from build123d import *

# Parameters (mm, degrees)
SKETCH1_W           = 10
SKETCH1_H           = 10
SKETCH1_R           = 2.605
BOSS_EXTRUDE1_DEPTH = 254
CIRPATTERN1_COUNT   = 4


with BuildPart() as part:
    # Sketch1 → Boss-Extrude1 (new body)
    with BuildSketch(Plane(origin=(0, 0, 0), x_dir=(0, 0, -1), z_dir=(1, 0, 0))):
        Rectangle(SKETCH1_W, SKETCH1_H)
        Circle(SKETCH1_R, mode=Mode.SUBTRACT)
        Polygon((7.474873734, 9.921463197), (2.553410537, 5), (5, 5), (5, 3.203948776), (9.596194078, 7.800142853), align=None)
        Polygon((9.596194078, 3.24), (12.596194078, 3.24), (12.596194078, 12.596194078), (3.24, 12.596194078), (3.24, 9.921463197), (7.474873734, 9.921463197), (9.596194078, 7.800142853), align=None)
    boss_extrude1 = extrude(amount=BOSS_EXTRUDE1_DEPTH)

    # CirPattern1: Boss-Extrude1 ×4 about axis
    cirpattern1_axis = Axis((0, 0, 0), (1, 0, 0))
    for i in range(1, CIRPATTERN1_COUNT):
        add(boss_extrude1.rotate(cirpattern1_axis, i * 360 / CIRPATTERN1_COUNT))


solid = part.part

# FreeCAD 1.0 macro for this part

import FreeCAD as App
import Part
import Sketcher
Q = App.Units.Quantity

doc = App.newDocument("Part")
body = doc.addObject("PartDesign::Body", "Body")

sketch1 = doc.addObject("Sketcher::SketchObject", "Sketch")
body.addObject(sketch1)
sketch1.AttachmentSupport = (doc.YZ_Plane, [""])
sketch1.MapMode = "FlatFace"
sketch1.addGeometry([
    Part.LineSegment(App.Vector(5, 5, 0), App.Vector(-5, 5, 0)),
    Part.LineSegment(App.Vector(-5, 5, 0), App.Vector(-5, -5, 0)),
    Part.LineSegment(App.Vector(-5, -5, 0), App.Vector(3.2, -5, 0)),
    Part.LineSegment(App.Vector(3.2, -5, 0), App.Vector(7.8, -9.6, 0)),
    Part.LineSegment(App.Vector(7.8, -9.6, 0), App.Vector(3.2, -9.6, 0)),
    Part.LineSegment(App.Vector(3.2, -9.6, 0), App.Vector(3.2, -12.6, 0)),
    Part.LineSegment(App.Vector(3.2, -12.6, 0), App.Vector(12.6, -12.6, 0)),
    Part.LineSegment(App.Vector(12.6, -12.6, 0), App.Vector(12.6, -3.2, 0)),
    Part.LineSegment(App.Vector(12.6, -3.2, 0), App.Vector(9.9, -3.2, 0)),
    Part.LineSegment(App.Vector(9.9, -3.2, 0), App.Vector(9.9, -7.5, 0)),
    Part.LineSegment(App.Vector(9.9, -7.5, 0), App.Vector(5, -2.6, 0)),
    Part.LineSegment(App.Vector(5, -2.6, 0), App.Vector(5, 5, 0)),
    Part.Circle(App.Vector(0, 0, 0), App.Vector(0, 0, 1), 2.6),
], False)
sketch1.addConstraint([
    Sketcher.Constraint("Coincident", 0, 2, 1, 1),
    Sketcher.Constraint("Coincident", 1, 2, 2, 1),
    Sketcher.Constraint("Coincident", 2, 2, 3, 1),
    Sketcher.Constraint("Coincident", 3, 2, 4, 1),
    Sketcher.Constraint("Coincident", 4, 2, 5, 1),
    Sketcher.Constraint("Coincident", 5, 2, 6, 1),
    Sketcher.Constraint("Coincident", 6, 2, 7, 1),
    Sketcher.Constraint("Coincident", 7, 2, 8, 1),
    Sketcher.Constraint("Coincident", 8, 2, 9, 1),
    Sketcher.Constraint("Coincident", 9, 2, 10, 1),
    Sketcher.Constraint("Coincident", 10, 2, 11, 1),
    Sketcher.Constraint("Coincident", 11, 2, 0, 1),
    Sketcher.Constraint("Horizontal", 0),
    Sketcher.Constraint("Vertical", 1),
    Sketcher.Constraint("Horizontal", 2),
    Sketcher.Constraint("Horizontal", 4),
    Sketcher.Constraint("Vertical", 5),
    Sketcher.Constraint("Horizontal", 6),
    Sketcher.Constraint("Vertical", 7),
    Sketcher.Constraint("Horizontal", 8),
    Sketcher.Constraint("Vertical", 9),
    Sketcher.Constraint("Vertical", 11),
    Sketcher.Constraint("Coincident", 12, 3, -1, 1),
    Sketcher.Constraint("Symmetric", 1, 2, 11, 2, -1, 1),
    Sketcher.Constraint("Parallel", 3, 10),
    Sketcher.Constraint("Equal", 0, 1),
    Sketcher.Constraint("Equal", 6, 7),
    Sketcher.Constraint("Diameter", 12, 5.21),
    Sketcher.Constraint("DistanceX", 0, 2, 0, 1, 10.0),
    Sketcher.Constraint("DistanceY", 5, 2, 5, 1, 3.0),
    Sketcher.Constraint("Angle", 3, Q("-45 deg")),
    Sketcher.Constraint("Distance", 3, 6.5),
    Sketcher.Constraint("Distance", 10, 6.96),
    Sketcher.Constraint("DistanceX", -1, 1, 4, 2, 3.24),
    Sketcher.Constraint("DistanceY", 7, 2, -1, 1, 3.24),
    Sketcher.Constraint("DistanceX", 2, 1, 2, 2, 8.203949),
    Sketcher.Constraint("DistanceY", 11, 1, 11, 2, 7.553411),
])
pad1 = doc.addObject("PartDesign::Pad", "Pad")
body.addObject(pad1)
pad1.Profile = sketch1
pad1.Length = 254
doc.recompute()

polarpattern = doc.addObject("PartDesign::PolarPattern", "PolarPattern")
body.addObject(polarpattern)
polarpattern.Originals = [pad1]
polarpattern.Axis = (doc.X_Axis, [""])
polarpattern.Angle = 360
polarpattern.Occurrences = 4
body.Tip = polarpattern

doc.recompute()
